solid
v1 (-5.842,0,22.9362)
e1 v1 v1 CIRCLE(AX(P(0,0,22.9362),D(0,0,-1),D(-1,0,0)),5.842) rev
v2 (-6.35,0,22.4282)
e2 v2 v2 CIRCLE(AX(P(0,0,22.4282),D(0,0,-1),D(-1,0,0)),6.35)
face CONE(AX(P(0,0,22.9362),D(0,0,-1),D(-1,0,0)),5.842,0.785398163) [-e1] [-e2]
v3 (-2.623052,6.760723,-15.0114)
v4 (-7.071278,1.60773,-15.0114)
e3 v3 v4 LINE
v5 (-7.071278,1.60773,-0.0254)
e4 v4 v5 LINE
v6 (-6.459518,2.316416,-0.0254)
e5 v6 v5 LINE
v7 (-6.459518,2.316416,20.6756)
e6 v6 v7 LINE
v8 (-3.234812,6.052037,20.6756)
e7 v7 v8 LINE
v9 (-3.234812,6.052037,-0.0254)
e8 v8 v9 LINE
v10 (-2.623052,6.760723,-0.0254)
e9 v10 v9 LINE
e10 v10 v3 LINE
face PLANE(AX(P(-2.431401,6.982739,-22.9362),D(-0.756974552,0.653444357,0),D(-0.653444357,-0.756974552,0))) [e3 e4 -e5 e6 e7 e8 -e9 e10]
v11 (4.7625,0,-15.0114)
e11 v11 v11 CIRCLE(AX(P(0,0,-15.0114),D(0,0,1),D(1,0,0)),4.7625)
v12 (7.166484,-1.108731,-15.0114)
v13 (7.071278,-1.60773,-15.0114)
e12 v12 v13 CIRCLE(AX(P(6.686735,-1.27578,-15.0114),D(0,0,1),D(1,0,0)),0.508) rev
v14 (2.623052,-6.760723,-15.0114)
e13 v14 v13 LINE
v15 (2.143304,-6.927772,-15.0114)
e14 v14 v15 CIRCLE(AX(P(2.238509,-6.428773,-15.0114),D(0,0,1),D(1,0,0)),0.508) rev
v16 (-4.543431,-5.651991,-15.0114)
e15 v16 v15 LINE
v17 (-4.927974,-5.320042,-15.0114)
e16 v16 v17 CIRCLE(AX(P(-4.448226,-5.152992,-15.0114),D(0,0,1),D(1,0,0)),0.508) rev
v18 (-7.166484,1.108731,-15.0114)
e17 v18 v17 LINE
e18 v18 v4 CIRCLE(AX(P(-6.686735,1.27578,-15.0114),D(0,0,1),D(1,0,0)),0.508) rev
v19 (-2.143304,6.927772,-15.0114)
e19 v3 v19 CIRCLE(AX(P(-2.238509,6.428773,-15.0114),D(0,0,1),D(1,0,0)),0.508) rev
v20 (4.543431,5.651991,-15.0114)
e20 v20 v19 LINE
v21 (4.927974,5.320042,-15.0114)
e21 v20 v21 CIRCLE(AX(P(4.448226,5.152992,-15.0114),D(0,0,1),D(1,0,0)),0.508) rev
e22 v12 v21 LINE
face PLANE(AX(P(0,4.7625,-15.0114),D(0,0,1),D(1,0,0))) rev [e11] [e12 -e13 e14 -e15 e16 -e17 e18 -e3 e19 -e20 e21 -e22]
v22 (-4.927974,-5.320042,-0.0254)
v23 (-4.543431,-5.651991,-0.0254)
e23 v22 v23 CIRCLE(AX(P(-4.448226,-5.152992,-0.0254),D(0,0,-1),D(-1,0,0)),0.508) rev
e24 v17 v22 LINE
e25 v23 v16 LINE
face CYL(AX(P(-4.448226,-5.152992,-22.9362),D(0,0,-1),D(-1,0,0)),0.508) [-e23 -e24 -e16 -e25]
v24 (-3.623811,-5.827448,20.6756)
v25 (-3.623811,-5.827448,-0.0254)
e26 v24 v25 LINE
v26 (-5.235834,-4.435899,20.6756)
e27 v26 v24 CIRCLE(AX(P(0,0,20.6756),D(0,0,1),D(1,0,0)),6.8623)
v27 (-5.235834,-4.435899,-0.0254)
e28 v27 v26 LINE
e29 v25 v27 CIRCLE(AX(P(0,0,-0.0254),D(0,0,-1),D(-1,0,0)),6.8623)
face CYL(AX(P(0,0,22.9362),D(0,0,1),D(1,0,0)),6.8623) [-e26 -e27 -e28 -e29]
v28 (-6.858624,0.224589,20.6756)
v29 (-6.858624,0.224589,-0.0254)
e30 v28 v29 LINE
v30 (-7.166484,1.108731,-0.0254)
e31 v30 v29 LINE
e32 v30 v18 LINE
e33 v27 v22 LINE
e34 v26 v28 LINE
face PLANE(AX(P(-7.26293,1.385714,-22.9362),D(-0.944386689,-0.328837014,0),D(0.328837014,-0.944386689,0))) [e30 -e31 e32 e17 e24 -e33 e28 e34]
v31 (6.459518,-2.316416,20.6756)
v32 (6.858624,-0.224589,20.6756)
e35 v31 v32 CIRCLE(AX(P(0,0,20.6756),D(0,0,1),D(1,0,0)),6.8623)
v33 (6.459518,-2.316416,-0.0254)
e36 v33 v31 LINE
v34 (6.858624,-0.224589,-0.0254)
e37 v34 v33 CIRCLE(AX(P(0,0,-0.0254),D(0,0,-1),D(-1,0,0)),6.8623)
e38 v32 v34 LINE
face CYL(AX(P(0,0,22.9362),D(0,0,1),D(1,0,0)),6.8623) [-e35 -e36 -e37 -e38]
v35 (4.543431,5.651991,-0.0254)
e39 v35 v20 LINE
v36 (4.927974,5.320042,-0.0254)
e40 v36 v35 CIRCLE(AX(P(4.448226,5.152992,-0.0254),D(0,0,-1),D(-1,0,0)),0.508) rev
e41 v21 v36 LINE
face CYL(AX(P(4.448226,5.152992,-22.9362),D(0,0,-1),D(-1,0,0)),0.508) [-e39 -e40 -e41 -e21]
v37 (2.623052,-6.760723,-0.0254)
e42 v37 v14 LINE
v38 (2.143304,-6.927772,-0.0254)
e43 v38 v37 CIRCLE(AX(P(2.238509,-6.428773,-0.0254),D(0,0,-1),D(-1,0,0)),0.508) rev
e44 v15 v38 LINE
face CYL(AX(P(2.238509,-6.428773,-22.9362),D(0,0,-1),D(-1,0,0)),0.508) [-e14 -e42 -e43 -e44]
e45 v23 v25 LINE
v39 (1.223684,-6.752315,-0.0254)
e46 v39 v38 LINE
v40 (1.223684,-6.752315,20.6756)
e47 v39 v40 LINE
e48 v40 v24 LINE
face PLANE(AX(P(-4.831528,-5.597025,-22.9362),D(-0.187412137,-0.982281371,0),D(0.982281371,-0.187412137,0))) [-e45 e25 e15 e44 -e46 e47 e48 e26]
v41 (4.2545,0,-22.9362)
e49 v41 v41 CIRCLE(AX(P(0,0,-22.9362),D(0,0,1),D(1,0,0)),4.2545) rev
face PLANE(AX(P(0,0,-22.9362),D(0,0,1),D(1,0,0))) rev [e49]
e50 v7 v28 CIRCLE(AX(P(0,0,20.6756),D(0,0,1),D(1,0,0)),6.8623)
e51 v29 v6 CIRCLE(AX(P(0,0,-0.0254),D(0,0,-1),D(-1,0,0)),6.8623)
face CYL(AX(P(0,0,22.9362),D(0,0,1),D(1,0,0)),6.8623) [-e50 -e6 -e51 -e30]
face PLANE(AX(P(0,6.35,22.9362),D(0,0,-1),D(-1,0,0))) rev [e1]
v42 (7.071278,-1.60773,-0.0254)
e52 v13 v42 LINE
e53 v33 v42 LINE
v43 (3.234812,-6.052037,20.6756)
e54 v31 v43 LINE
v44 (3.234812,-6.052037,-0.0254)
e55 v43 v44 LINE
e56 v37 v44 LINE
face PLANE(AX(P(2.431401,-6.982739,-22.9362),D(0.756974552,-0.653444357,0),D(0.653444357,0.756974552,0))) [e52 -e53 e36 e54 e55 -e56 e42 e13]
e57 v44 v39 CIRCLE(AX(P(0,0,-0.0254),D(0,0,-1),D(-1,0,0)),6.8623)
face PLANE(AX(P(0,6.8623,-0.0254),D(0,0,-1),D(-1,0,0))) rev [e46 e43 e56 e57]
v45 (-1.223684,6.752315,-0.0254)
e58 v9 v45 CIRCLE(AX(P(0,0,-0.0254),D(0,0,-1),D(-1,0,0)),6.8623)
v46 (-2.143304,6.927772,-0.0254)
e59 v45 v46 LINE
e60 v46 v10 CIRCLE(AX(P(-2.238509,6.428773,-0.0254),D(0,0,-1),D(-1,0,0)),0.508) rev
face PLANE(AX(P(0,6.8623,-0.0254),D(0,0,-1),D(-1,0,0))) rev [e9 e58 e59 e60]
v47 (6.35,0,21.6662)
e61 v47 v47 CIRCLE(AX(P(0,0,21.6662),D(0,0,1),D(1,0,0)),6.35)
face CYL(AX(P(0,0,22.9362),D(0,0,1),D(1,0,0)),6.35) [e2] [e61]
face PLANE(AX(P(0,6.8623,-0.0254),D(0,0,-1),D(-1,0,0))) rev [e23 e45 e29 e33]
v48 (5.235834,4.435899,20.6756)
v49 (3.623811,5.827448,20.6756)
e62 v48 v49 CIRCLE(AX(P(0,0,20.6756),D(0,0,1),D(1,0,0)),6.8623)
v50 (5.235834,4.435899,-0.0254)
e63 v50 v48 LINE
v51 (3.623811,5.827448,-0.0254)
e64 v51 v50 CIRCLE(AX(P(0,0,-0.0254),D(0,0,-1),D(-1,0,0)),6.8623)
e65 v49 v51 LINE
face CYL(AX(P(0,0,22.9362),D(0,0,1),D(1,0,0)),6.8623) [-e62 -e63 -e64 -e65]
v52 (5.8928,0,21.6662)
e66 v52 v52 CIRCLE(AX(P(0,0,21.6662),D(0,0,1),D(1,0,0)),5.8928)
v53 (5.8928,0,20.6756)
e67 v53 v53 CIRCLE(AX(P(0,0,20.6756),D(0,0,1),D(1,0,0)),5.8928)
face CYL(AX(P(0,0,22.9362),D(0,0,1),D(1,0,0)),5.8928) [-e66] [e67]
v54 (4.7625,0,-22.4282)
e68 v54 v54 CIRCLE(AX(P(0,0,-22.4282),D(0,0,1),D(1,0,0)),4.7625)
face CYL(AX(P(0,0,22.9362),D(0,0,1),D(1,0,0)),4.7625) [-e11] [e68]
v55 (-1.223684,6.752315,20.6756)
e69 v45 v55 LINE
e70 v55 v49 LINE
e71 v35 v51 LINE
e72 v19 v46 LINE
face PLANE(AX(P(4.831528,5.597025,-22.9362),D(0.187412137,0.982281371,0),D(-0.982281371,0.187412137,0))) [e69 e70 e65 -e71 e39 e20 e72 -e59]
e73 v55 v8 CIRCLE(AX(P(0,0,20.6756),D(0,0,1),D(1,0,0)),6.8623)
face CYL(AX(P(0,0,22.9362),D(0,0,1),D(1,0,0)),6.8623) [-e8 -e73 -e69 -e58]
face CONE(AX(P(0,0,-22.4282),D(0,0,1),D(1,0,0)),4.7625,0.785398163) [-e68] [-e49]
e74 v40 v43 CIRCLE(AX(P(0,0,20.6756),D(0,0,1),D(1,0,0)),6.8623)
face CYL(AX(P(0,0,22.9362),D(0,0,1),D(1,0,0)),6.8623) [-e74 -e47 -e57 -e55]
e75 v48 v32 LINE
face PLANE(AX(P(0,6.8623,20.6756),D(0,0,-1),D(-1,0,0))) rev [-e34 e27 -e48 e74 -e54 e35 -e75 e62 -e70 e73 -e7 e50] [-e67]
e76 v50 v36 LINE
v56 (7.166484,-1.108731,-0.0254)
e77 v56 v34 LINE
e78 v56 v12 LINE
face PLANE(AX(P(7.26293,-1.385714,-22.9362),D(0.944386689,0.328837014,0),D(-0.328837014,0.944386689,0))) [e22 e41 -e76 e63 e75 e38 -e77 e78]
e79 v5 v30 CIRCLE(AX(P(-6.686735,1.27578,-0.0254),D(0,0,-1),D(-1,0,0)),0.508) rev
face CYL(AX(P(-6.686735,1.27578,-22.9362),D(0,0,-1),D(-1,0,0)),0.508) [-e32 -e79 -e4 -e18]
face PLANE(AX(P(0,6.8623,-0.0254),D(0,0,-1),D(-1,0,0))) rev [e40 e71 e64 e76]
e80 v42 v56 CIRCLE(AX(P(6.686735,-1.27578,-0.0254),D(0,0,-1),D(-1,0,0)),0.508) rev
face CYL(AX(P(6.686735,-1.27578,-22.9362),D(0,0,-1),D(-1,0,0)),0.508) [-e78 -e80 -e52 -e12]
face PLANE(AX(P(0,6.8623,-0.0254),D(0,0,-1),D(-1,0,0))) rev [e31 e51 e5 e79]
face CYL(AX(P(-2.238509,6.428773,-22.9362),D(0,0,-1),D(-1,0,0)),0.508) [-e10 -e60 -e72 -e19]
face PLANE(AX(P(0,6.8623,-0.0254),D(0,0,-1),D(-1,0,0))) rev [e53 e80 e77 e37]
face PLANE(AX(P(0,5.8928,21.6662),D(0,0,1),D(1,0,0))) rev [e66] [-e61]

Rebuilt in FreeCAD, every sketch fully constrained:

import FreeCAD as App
import Part
import Sketcher

V = App.Vector
Q = App.Units.Quantity


def edges_at(feature, points):
    """Names of the edges that pass closest to the given points."""
    edges = feature.Shape.Edges
    near = lambda p: min(range(len(edges)), key=lambda i: edges[i].distToShape(Part.Vertex(*p))[0])
    return sorted({f"Edge{near(p) + 1}" for p in points})


def add_polygon(sketch, points):
    """Adds a closed chain of lines whose ends are joined by coincident constraints."""
    first, n = sketch.GeometryCount, len(points)
    for a, b in zip(points, points[1:] + points[:1]):
        sketch.addGeometry(Part.LineSegment(App.Vector(*a, 0), App.Vector(*b, 0)), False)
    for i in range(n):
        sketch.addConstraint(Sketcher.Constraint("Coincident", first + i, 2, first + (i + 1) % n, 1))

doc = App.newDocument("Part")
body = doc.addObject("PartDesign::Body", "Body")

# Sketch on YZ plane
sketch1 = body.newObject("Sketcher::SketchObject", "Sketch")
sketch1.AttachmentSupport = (doc.getObject("YZ_Plane"), [""])
sketch1.MapMode = "FlatFace"
add_polygon(sketch1, [(0, 22.94), (0, -22.94), (4.76, -22.94), (4.76, -15.01), (6.86, -15.01), (6.86, 20.68), (5.89, 20.68), (5.89, 21.67), (6.35, 21.67), (6.35, 22.94)])  # lines 0-9
sketch1.addConstraint(Sketcher.Constraint("Vertical", 0))
sketch1.addConstraint(Sketcher.Constraint("Horizontal", 1))
sketch1.addConstraint(Sketcher.Constraint("Vertical", 2))
sketch1.addConstraint(Sketcher.Constraint("Horizontal", 3))
sketch1.addConstraint(Sketcher.Constraint("Vertical", 4))
sketch1.addConstraint(Sketcher.Constraint("Horizontal", 5))
sketch1.addConstraint(Sketcher.Constraint("Vertical", 6))
sketch1.addConstraint(Sketcher.Constraint("Horizontal", 7))
sketch1.addConstraint(Sketcher.Constraint("Vertical", 8))
sketch1.addConstraint(Sketcher.Constraint("Horizontal", 9))
sketch1.addConstraint(Sketcher.Constraint("Symmetric", 0, 2, 9, 2, -1, 1))
sketch1.addConstraint(Sketcher.Constraint("DistanceX", 9, 2, 9, 1, Q("0.25 in")))
sketch1.addConstraint(Sketcher.Constraint("DistanceY", 8, 1, 8, 2, Q("0.05 in")))
sketch1.addConstraint(Sketcher.Constraint("DistanceX", 1, 1, 1, 2, Q("0.1875 in")))
sketch1.addConstraint(Sketcher.Constraint("DistanceX", 7, 1, 7, 2, Q("0.018 in")))
sketch1.addConstraint(Sketcher.Constraint("DistanceY", 0, 2, 0, 1, Q("1.806 in")))
sketch1.addConstraint(Sketcher.Constraint("DistanceY", 2, 1, 2, 2, Q("0.312 in")))
sketch1.addConstraint(Sketcher.Constraint("DistanceY", 4, 1, 4, 2, Q("1.405 in")))
sketch1.addConstraint(Sketcher.Constraint("DistanceX", 3, 1, 3, 2, 2.0998))
revolution = body.newObject("PartDesign::Revolution", "Revolution")
revolution.Profile = sketch1
revolution.ReferenceAxis = (sketch1, ["V_Axis"])
revolution.Angle = 360

# Sketch on XY plane
sketch2 = body.newObject("Sketcher::SketchObject", "Sketch001")
sketch2.AttachmentSupport = (doc.getObject("XY_Plane"), [""])
sketch2.MapMode = "FlatFace"
sketch2.AttachmentOffset = App.Placement(V(0, 0, 0.903 * 25.4), App.Rotation())
add_polygon(sketch2, [(-13, 13), (-13, -13), (13, -13), (13, 13)])  # lines 0-3
add_polygon(sketch2, [(5, 6), (7, -1), (2, -7), (-5, -6), (-7, 1), (-2, 7)])  # lines 4-9
sketch2.addConstraint(Sketcher.Constraint("Vertical", 0))
sketch2.addConstraint(Sketcher.Constraint("Horizontal", 1))
sketch2.addConstraint(Sketcher.Constraint("Vertical", 2))
sketch2.addConstraint(Sketcher.Constraint("Horizontal", 3))
sketch2.addConstraint(Sketcher.Constraint("Symmetric", 0, 2, 2, 2, -1, 1))
sketch2.addConstraint(Sketcher.Constraint("Symmetric", 4, 2, 7, 2, -1, 1))
sketch2.addConstraint(Sketcher.Constraint("Symmetric", 5, 2, 8, 2, -1, 1))
sketch2.addConstraint(Sketcher.Constraint("Symmetric", 6, 2, 9, 2, -1, 1))
sketch2.addConstraint(Sketcher.Constraint("Equal", 3, 0))
sketch2.addConstraint(Sketcher.Constraint("Equal", 4, 5))
sketch2.addConstraint(Sketcher.Constraint("Equal", 5, 6))
sketch2.addConstraint(Sketcher.Constraint("Distance", 4, Q("0.2911 in")))
sketch2.addConstraint(Sketcher.Constraint("DistanceX", 1, 1, 1, 2, 25.686))
sketch2.addConstraint(Sketcher.Constraint("DistanceX", -1, 1, 5, 2, 2.431401))
sketch2.addConstraint(Sketcher.Constraint("DistanceX", 7, 2, 6, 2, 2.431401))
sketch2.addConstraint(Sketcher.Constraint("DistanceX", -1, 1, 4, 2, 7.26293))
pocket1 = body.newObject("PartDesign::Pocket", "Pocket")
pocket1.Profile = sketch2
pocket1.Type = "ThroughAll"
doc.recompute()

chamfer = body.newObject("PartDesign::Chamfer", "Chamfer")
chamfer.Base = (pocket1, edges_at(pocket1, [(-4.763, 0, -22.936), (-6.35, 0, 22.936)]))
chamfer.Size = Q("0.02 in")

# Sketch on XY plane
sketch3 = body.newObject("Sketcher::SketchObject", "Sketch002")
sketch3.AttachmentSupport = (doc.getObject("XY_Plane"), [""])
sketch3.MapMode = "FlatFace"
sketch3.AttachmentOffset = App.Placement(V(0, 0, -0.591 * 25.4), App.Rotation())
add_polygon(sketch3, [(2, -7), (-5, -6), (-7, 1), (-2, 7), (5, 6), (7, -1)])  # lines 0-5
sketch3.addConstraint(Sketcher.Constraint("Symmetric", 0, 2, 3, 2, -1, 1))
sketch3.addConstraint(Sketcher.Constraint("Symmetric", 1, 2, 4, 2, -1, 1))
sketch3.addConstraint(Sketcher.Constraint("Symmetric", 2, 2, 5, 2, -1, 1))
sketch3.addConstraint(Sketcher.Constraint("Equal", 0, 1))
sketch3.addConstraint(Sketcher.Constraint("Equal", 1, 2))
sketch3.addConstraint(Sketcher.Constraint("Distance", 0, Q("0.2911 in")))
sketch3.addConstraint(Sketcher.Constraint("DistanceX", 2, 2, -1, 1, 2.431401))
sketch3.addConstraint(Sketcher.Constraint("DistanceX", 1, 2, 0, 2, 2.431401))
sketch3.addConstraint(Sketcher.Constraint("DistanceX", 0, 2, -1, 1, 4.831528))
pad1 = body.newObject("PartDesign::Pad", "Pad")
pad1.Profile = sketch3
pad1.Length = Q("0.59 in")
doc.recompute()

fillet = body.newObject("PartDesign::Fillet", "Fillet")
fillet.Base = (pad1, edges_at(pad1, [
    (2.431, -6.983, -7.518),
    (-4.832, -5.597, -7.518),
    (-7.263, 1.386, -7.518),
    (-2.431, 6.983, -7.518),
    (7.263, -1.386, -7.518),
    (4.832, 5.597, -7.518),
]))
fillet.Radius = Q("0.02 in")

doc.recompute()
